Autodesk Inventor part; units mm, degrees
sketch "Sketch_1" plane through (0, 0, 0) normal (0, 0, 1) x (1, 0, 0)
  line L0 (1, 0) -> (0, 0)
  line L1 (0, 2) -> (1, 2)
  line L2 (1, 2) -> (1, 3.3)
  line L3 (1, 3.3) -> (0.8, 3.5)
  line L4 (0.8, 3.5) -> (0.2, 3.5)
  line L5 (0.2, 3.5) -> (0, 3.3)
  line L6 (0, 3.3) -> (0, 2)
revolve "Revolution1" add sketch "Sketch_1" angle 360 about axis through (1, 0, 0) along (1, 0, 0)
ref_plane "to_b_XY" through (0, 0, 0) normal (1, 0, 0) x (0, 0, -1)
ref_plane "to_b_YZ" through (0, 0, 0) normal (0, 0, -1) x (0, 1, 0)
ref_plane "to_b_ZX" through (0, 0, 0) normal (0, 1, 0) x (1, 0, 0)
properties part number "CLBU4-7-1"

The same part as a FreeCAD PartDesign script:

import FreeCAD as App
import Part
import Sketcher

V = App.Vector


def add_polygon(sketch, points):
    """Adds a closed chain of lines whose ends are joined by coincident constraints."""
    first, n = sketch.GeometryCount, len(points)
    for a, b in zip(points, points[1:] + points[:1]):
        sketch.addGeometry(Part.LineSegment(App.Vector(*a, 0), App.Vector(*b, 0)), False)
    for i in range(n):
        sketch.addConstraint(Sketcher.Constraint("Coincident", first + i, 2, first + (i + 1) % n, 1))

doc = App.newDocument("Part")
params = doc.addObject("Spreadsheet::Sheet", "Params")
for row, (alias, value) in enumerate([
    ("sketch1_width", "1 mm"),
    ("sketch1_width2", "0.6 mm"),
    ("sketch1_height", "1.3 mm"),
    ("revolution_angle", "360 deg"),
], start=1):
    params.set(f"A{row}", alias)
    params.set(f"B{row}", "=" + value)
    params.setAlias(f"B{row}", alias)

body = doc.addObject("PartDesign::Body", "Body")

sketch1 = body.newObject("Sketcher::SketchObject", "Sketch")
sketch1.AttachmentSupport = (doc.getObject("XY_Plane"), [""])
sketch1.MapMode = "FlatFace"
add_polygon(sketch1, [(0, 3.3), (0, 2), (1, 2), (1, 3.3), (0.8, 3.5), (0.2, 3.5)])
sketch1.addConstraint([
    Sketcher.Constraint("Vertical", 0),
    Sketcher.Constraint("Horizontal", 1),
    Sketcher.Constraint("Vertical", 2),
    Sketcher.Constraint("Horizontal", 4),
    Sketcher.Constraint("PointOnObject", 0, 2, -2),
    Sketcher.Constraint("Perpendicular", 3, 5),
    Sketcher.Constraint("Horizontal", 2, 2, 5, 2),
    Sketcher.Constraint("Equal", 3, 5),
    Sketcher.Constraint("DistanceX", 1, 1, 1, 2, 1.0),
    Sketcher.Constraint("DistanceX", 4, 2, 4, 1, 0.6),
    Sketcher.Constraint("DistanceY", 0, 2, 0, 1, 1.3),
    Sketcher.Constraint("DistanceY", -1, 1, 0, 2, 2.0),
])
sketch1.setExpression("Constraints[14]", "Params.sketch1_width")
sketch1.setExpression("Constraints[15]", "Params.sketch1_width2")
sketch1.setExpression("Constraints[16]", "Params.sketch1_height")
revolution = body.newObject("PartDesign::Revolution", "Revolution")
revolution.Profile = sketch1
revolution.ReferenceAxis = (sketch1, ["H_Axis"])
revolution.setExpression("Angle", "Params.revolution_angle")

doc.recompute()
